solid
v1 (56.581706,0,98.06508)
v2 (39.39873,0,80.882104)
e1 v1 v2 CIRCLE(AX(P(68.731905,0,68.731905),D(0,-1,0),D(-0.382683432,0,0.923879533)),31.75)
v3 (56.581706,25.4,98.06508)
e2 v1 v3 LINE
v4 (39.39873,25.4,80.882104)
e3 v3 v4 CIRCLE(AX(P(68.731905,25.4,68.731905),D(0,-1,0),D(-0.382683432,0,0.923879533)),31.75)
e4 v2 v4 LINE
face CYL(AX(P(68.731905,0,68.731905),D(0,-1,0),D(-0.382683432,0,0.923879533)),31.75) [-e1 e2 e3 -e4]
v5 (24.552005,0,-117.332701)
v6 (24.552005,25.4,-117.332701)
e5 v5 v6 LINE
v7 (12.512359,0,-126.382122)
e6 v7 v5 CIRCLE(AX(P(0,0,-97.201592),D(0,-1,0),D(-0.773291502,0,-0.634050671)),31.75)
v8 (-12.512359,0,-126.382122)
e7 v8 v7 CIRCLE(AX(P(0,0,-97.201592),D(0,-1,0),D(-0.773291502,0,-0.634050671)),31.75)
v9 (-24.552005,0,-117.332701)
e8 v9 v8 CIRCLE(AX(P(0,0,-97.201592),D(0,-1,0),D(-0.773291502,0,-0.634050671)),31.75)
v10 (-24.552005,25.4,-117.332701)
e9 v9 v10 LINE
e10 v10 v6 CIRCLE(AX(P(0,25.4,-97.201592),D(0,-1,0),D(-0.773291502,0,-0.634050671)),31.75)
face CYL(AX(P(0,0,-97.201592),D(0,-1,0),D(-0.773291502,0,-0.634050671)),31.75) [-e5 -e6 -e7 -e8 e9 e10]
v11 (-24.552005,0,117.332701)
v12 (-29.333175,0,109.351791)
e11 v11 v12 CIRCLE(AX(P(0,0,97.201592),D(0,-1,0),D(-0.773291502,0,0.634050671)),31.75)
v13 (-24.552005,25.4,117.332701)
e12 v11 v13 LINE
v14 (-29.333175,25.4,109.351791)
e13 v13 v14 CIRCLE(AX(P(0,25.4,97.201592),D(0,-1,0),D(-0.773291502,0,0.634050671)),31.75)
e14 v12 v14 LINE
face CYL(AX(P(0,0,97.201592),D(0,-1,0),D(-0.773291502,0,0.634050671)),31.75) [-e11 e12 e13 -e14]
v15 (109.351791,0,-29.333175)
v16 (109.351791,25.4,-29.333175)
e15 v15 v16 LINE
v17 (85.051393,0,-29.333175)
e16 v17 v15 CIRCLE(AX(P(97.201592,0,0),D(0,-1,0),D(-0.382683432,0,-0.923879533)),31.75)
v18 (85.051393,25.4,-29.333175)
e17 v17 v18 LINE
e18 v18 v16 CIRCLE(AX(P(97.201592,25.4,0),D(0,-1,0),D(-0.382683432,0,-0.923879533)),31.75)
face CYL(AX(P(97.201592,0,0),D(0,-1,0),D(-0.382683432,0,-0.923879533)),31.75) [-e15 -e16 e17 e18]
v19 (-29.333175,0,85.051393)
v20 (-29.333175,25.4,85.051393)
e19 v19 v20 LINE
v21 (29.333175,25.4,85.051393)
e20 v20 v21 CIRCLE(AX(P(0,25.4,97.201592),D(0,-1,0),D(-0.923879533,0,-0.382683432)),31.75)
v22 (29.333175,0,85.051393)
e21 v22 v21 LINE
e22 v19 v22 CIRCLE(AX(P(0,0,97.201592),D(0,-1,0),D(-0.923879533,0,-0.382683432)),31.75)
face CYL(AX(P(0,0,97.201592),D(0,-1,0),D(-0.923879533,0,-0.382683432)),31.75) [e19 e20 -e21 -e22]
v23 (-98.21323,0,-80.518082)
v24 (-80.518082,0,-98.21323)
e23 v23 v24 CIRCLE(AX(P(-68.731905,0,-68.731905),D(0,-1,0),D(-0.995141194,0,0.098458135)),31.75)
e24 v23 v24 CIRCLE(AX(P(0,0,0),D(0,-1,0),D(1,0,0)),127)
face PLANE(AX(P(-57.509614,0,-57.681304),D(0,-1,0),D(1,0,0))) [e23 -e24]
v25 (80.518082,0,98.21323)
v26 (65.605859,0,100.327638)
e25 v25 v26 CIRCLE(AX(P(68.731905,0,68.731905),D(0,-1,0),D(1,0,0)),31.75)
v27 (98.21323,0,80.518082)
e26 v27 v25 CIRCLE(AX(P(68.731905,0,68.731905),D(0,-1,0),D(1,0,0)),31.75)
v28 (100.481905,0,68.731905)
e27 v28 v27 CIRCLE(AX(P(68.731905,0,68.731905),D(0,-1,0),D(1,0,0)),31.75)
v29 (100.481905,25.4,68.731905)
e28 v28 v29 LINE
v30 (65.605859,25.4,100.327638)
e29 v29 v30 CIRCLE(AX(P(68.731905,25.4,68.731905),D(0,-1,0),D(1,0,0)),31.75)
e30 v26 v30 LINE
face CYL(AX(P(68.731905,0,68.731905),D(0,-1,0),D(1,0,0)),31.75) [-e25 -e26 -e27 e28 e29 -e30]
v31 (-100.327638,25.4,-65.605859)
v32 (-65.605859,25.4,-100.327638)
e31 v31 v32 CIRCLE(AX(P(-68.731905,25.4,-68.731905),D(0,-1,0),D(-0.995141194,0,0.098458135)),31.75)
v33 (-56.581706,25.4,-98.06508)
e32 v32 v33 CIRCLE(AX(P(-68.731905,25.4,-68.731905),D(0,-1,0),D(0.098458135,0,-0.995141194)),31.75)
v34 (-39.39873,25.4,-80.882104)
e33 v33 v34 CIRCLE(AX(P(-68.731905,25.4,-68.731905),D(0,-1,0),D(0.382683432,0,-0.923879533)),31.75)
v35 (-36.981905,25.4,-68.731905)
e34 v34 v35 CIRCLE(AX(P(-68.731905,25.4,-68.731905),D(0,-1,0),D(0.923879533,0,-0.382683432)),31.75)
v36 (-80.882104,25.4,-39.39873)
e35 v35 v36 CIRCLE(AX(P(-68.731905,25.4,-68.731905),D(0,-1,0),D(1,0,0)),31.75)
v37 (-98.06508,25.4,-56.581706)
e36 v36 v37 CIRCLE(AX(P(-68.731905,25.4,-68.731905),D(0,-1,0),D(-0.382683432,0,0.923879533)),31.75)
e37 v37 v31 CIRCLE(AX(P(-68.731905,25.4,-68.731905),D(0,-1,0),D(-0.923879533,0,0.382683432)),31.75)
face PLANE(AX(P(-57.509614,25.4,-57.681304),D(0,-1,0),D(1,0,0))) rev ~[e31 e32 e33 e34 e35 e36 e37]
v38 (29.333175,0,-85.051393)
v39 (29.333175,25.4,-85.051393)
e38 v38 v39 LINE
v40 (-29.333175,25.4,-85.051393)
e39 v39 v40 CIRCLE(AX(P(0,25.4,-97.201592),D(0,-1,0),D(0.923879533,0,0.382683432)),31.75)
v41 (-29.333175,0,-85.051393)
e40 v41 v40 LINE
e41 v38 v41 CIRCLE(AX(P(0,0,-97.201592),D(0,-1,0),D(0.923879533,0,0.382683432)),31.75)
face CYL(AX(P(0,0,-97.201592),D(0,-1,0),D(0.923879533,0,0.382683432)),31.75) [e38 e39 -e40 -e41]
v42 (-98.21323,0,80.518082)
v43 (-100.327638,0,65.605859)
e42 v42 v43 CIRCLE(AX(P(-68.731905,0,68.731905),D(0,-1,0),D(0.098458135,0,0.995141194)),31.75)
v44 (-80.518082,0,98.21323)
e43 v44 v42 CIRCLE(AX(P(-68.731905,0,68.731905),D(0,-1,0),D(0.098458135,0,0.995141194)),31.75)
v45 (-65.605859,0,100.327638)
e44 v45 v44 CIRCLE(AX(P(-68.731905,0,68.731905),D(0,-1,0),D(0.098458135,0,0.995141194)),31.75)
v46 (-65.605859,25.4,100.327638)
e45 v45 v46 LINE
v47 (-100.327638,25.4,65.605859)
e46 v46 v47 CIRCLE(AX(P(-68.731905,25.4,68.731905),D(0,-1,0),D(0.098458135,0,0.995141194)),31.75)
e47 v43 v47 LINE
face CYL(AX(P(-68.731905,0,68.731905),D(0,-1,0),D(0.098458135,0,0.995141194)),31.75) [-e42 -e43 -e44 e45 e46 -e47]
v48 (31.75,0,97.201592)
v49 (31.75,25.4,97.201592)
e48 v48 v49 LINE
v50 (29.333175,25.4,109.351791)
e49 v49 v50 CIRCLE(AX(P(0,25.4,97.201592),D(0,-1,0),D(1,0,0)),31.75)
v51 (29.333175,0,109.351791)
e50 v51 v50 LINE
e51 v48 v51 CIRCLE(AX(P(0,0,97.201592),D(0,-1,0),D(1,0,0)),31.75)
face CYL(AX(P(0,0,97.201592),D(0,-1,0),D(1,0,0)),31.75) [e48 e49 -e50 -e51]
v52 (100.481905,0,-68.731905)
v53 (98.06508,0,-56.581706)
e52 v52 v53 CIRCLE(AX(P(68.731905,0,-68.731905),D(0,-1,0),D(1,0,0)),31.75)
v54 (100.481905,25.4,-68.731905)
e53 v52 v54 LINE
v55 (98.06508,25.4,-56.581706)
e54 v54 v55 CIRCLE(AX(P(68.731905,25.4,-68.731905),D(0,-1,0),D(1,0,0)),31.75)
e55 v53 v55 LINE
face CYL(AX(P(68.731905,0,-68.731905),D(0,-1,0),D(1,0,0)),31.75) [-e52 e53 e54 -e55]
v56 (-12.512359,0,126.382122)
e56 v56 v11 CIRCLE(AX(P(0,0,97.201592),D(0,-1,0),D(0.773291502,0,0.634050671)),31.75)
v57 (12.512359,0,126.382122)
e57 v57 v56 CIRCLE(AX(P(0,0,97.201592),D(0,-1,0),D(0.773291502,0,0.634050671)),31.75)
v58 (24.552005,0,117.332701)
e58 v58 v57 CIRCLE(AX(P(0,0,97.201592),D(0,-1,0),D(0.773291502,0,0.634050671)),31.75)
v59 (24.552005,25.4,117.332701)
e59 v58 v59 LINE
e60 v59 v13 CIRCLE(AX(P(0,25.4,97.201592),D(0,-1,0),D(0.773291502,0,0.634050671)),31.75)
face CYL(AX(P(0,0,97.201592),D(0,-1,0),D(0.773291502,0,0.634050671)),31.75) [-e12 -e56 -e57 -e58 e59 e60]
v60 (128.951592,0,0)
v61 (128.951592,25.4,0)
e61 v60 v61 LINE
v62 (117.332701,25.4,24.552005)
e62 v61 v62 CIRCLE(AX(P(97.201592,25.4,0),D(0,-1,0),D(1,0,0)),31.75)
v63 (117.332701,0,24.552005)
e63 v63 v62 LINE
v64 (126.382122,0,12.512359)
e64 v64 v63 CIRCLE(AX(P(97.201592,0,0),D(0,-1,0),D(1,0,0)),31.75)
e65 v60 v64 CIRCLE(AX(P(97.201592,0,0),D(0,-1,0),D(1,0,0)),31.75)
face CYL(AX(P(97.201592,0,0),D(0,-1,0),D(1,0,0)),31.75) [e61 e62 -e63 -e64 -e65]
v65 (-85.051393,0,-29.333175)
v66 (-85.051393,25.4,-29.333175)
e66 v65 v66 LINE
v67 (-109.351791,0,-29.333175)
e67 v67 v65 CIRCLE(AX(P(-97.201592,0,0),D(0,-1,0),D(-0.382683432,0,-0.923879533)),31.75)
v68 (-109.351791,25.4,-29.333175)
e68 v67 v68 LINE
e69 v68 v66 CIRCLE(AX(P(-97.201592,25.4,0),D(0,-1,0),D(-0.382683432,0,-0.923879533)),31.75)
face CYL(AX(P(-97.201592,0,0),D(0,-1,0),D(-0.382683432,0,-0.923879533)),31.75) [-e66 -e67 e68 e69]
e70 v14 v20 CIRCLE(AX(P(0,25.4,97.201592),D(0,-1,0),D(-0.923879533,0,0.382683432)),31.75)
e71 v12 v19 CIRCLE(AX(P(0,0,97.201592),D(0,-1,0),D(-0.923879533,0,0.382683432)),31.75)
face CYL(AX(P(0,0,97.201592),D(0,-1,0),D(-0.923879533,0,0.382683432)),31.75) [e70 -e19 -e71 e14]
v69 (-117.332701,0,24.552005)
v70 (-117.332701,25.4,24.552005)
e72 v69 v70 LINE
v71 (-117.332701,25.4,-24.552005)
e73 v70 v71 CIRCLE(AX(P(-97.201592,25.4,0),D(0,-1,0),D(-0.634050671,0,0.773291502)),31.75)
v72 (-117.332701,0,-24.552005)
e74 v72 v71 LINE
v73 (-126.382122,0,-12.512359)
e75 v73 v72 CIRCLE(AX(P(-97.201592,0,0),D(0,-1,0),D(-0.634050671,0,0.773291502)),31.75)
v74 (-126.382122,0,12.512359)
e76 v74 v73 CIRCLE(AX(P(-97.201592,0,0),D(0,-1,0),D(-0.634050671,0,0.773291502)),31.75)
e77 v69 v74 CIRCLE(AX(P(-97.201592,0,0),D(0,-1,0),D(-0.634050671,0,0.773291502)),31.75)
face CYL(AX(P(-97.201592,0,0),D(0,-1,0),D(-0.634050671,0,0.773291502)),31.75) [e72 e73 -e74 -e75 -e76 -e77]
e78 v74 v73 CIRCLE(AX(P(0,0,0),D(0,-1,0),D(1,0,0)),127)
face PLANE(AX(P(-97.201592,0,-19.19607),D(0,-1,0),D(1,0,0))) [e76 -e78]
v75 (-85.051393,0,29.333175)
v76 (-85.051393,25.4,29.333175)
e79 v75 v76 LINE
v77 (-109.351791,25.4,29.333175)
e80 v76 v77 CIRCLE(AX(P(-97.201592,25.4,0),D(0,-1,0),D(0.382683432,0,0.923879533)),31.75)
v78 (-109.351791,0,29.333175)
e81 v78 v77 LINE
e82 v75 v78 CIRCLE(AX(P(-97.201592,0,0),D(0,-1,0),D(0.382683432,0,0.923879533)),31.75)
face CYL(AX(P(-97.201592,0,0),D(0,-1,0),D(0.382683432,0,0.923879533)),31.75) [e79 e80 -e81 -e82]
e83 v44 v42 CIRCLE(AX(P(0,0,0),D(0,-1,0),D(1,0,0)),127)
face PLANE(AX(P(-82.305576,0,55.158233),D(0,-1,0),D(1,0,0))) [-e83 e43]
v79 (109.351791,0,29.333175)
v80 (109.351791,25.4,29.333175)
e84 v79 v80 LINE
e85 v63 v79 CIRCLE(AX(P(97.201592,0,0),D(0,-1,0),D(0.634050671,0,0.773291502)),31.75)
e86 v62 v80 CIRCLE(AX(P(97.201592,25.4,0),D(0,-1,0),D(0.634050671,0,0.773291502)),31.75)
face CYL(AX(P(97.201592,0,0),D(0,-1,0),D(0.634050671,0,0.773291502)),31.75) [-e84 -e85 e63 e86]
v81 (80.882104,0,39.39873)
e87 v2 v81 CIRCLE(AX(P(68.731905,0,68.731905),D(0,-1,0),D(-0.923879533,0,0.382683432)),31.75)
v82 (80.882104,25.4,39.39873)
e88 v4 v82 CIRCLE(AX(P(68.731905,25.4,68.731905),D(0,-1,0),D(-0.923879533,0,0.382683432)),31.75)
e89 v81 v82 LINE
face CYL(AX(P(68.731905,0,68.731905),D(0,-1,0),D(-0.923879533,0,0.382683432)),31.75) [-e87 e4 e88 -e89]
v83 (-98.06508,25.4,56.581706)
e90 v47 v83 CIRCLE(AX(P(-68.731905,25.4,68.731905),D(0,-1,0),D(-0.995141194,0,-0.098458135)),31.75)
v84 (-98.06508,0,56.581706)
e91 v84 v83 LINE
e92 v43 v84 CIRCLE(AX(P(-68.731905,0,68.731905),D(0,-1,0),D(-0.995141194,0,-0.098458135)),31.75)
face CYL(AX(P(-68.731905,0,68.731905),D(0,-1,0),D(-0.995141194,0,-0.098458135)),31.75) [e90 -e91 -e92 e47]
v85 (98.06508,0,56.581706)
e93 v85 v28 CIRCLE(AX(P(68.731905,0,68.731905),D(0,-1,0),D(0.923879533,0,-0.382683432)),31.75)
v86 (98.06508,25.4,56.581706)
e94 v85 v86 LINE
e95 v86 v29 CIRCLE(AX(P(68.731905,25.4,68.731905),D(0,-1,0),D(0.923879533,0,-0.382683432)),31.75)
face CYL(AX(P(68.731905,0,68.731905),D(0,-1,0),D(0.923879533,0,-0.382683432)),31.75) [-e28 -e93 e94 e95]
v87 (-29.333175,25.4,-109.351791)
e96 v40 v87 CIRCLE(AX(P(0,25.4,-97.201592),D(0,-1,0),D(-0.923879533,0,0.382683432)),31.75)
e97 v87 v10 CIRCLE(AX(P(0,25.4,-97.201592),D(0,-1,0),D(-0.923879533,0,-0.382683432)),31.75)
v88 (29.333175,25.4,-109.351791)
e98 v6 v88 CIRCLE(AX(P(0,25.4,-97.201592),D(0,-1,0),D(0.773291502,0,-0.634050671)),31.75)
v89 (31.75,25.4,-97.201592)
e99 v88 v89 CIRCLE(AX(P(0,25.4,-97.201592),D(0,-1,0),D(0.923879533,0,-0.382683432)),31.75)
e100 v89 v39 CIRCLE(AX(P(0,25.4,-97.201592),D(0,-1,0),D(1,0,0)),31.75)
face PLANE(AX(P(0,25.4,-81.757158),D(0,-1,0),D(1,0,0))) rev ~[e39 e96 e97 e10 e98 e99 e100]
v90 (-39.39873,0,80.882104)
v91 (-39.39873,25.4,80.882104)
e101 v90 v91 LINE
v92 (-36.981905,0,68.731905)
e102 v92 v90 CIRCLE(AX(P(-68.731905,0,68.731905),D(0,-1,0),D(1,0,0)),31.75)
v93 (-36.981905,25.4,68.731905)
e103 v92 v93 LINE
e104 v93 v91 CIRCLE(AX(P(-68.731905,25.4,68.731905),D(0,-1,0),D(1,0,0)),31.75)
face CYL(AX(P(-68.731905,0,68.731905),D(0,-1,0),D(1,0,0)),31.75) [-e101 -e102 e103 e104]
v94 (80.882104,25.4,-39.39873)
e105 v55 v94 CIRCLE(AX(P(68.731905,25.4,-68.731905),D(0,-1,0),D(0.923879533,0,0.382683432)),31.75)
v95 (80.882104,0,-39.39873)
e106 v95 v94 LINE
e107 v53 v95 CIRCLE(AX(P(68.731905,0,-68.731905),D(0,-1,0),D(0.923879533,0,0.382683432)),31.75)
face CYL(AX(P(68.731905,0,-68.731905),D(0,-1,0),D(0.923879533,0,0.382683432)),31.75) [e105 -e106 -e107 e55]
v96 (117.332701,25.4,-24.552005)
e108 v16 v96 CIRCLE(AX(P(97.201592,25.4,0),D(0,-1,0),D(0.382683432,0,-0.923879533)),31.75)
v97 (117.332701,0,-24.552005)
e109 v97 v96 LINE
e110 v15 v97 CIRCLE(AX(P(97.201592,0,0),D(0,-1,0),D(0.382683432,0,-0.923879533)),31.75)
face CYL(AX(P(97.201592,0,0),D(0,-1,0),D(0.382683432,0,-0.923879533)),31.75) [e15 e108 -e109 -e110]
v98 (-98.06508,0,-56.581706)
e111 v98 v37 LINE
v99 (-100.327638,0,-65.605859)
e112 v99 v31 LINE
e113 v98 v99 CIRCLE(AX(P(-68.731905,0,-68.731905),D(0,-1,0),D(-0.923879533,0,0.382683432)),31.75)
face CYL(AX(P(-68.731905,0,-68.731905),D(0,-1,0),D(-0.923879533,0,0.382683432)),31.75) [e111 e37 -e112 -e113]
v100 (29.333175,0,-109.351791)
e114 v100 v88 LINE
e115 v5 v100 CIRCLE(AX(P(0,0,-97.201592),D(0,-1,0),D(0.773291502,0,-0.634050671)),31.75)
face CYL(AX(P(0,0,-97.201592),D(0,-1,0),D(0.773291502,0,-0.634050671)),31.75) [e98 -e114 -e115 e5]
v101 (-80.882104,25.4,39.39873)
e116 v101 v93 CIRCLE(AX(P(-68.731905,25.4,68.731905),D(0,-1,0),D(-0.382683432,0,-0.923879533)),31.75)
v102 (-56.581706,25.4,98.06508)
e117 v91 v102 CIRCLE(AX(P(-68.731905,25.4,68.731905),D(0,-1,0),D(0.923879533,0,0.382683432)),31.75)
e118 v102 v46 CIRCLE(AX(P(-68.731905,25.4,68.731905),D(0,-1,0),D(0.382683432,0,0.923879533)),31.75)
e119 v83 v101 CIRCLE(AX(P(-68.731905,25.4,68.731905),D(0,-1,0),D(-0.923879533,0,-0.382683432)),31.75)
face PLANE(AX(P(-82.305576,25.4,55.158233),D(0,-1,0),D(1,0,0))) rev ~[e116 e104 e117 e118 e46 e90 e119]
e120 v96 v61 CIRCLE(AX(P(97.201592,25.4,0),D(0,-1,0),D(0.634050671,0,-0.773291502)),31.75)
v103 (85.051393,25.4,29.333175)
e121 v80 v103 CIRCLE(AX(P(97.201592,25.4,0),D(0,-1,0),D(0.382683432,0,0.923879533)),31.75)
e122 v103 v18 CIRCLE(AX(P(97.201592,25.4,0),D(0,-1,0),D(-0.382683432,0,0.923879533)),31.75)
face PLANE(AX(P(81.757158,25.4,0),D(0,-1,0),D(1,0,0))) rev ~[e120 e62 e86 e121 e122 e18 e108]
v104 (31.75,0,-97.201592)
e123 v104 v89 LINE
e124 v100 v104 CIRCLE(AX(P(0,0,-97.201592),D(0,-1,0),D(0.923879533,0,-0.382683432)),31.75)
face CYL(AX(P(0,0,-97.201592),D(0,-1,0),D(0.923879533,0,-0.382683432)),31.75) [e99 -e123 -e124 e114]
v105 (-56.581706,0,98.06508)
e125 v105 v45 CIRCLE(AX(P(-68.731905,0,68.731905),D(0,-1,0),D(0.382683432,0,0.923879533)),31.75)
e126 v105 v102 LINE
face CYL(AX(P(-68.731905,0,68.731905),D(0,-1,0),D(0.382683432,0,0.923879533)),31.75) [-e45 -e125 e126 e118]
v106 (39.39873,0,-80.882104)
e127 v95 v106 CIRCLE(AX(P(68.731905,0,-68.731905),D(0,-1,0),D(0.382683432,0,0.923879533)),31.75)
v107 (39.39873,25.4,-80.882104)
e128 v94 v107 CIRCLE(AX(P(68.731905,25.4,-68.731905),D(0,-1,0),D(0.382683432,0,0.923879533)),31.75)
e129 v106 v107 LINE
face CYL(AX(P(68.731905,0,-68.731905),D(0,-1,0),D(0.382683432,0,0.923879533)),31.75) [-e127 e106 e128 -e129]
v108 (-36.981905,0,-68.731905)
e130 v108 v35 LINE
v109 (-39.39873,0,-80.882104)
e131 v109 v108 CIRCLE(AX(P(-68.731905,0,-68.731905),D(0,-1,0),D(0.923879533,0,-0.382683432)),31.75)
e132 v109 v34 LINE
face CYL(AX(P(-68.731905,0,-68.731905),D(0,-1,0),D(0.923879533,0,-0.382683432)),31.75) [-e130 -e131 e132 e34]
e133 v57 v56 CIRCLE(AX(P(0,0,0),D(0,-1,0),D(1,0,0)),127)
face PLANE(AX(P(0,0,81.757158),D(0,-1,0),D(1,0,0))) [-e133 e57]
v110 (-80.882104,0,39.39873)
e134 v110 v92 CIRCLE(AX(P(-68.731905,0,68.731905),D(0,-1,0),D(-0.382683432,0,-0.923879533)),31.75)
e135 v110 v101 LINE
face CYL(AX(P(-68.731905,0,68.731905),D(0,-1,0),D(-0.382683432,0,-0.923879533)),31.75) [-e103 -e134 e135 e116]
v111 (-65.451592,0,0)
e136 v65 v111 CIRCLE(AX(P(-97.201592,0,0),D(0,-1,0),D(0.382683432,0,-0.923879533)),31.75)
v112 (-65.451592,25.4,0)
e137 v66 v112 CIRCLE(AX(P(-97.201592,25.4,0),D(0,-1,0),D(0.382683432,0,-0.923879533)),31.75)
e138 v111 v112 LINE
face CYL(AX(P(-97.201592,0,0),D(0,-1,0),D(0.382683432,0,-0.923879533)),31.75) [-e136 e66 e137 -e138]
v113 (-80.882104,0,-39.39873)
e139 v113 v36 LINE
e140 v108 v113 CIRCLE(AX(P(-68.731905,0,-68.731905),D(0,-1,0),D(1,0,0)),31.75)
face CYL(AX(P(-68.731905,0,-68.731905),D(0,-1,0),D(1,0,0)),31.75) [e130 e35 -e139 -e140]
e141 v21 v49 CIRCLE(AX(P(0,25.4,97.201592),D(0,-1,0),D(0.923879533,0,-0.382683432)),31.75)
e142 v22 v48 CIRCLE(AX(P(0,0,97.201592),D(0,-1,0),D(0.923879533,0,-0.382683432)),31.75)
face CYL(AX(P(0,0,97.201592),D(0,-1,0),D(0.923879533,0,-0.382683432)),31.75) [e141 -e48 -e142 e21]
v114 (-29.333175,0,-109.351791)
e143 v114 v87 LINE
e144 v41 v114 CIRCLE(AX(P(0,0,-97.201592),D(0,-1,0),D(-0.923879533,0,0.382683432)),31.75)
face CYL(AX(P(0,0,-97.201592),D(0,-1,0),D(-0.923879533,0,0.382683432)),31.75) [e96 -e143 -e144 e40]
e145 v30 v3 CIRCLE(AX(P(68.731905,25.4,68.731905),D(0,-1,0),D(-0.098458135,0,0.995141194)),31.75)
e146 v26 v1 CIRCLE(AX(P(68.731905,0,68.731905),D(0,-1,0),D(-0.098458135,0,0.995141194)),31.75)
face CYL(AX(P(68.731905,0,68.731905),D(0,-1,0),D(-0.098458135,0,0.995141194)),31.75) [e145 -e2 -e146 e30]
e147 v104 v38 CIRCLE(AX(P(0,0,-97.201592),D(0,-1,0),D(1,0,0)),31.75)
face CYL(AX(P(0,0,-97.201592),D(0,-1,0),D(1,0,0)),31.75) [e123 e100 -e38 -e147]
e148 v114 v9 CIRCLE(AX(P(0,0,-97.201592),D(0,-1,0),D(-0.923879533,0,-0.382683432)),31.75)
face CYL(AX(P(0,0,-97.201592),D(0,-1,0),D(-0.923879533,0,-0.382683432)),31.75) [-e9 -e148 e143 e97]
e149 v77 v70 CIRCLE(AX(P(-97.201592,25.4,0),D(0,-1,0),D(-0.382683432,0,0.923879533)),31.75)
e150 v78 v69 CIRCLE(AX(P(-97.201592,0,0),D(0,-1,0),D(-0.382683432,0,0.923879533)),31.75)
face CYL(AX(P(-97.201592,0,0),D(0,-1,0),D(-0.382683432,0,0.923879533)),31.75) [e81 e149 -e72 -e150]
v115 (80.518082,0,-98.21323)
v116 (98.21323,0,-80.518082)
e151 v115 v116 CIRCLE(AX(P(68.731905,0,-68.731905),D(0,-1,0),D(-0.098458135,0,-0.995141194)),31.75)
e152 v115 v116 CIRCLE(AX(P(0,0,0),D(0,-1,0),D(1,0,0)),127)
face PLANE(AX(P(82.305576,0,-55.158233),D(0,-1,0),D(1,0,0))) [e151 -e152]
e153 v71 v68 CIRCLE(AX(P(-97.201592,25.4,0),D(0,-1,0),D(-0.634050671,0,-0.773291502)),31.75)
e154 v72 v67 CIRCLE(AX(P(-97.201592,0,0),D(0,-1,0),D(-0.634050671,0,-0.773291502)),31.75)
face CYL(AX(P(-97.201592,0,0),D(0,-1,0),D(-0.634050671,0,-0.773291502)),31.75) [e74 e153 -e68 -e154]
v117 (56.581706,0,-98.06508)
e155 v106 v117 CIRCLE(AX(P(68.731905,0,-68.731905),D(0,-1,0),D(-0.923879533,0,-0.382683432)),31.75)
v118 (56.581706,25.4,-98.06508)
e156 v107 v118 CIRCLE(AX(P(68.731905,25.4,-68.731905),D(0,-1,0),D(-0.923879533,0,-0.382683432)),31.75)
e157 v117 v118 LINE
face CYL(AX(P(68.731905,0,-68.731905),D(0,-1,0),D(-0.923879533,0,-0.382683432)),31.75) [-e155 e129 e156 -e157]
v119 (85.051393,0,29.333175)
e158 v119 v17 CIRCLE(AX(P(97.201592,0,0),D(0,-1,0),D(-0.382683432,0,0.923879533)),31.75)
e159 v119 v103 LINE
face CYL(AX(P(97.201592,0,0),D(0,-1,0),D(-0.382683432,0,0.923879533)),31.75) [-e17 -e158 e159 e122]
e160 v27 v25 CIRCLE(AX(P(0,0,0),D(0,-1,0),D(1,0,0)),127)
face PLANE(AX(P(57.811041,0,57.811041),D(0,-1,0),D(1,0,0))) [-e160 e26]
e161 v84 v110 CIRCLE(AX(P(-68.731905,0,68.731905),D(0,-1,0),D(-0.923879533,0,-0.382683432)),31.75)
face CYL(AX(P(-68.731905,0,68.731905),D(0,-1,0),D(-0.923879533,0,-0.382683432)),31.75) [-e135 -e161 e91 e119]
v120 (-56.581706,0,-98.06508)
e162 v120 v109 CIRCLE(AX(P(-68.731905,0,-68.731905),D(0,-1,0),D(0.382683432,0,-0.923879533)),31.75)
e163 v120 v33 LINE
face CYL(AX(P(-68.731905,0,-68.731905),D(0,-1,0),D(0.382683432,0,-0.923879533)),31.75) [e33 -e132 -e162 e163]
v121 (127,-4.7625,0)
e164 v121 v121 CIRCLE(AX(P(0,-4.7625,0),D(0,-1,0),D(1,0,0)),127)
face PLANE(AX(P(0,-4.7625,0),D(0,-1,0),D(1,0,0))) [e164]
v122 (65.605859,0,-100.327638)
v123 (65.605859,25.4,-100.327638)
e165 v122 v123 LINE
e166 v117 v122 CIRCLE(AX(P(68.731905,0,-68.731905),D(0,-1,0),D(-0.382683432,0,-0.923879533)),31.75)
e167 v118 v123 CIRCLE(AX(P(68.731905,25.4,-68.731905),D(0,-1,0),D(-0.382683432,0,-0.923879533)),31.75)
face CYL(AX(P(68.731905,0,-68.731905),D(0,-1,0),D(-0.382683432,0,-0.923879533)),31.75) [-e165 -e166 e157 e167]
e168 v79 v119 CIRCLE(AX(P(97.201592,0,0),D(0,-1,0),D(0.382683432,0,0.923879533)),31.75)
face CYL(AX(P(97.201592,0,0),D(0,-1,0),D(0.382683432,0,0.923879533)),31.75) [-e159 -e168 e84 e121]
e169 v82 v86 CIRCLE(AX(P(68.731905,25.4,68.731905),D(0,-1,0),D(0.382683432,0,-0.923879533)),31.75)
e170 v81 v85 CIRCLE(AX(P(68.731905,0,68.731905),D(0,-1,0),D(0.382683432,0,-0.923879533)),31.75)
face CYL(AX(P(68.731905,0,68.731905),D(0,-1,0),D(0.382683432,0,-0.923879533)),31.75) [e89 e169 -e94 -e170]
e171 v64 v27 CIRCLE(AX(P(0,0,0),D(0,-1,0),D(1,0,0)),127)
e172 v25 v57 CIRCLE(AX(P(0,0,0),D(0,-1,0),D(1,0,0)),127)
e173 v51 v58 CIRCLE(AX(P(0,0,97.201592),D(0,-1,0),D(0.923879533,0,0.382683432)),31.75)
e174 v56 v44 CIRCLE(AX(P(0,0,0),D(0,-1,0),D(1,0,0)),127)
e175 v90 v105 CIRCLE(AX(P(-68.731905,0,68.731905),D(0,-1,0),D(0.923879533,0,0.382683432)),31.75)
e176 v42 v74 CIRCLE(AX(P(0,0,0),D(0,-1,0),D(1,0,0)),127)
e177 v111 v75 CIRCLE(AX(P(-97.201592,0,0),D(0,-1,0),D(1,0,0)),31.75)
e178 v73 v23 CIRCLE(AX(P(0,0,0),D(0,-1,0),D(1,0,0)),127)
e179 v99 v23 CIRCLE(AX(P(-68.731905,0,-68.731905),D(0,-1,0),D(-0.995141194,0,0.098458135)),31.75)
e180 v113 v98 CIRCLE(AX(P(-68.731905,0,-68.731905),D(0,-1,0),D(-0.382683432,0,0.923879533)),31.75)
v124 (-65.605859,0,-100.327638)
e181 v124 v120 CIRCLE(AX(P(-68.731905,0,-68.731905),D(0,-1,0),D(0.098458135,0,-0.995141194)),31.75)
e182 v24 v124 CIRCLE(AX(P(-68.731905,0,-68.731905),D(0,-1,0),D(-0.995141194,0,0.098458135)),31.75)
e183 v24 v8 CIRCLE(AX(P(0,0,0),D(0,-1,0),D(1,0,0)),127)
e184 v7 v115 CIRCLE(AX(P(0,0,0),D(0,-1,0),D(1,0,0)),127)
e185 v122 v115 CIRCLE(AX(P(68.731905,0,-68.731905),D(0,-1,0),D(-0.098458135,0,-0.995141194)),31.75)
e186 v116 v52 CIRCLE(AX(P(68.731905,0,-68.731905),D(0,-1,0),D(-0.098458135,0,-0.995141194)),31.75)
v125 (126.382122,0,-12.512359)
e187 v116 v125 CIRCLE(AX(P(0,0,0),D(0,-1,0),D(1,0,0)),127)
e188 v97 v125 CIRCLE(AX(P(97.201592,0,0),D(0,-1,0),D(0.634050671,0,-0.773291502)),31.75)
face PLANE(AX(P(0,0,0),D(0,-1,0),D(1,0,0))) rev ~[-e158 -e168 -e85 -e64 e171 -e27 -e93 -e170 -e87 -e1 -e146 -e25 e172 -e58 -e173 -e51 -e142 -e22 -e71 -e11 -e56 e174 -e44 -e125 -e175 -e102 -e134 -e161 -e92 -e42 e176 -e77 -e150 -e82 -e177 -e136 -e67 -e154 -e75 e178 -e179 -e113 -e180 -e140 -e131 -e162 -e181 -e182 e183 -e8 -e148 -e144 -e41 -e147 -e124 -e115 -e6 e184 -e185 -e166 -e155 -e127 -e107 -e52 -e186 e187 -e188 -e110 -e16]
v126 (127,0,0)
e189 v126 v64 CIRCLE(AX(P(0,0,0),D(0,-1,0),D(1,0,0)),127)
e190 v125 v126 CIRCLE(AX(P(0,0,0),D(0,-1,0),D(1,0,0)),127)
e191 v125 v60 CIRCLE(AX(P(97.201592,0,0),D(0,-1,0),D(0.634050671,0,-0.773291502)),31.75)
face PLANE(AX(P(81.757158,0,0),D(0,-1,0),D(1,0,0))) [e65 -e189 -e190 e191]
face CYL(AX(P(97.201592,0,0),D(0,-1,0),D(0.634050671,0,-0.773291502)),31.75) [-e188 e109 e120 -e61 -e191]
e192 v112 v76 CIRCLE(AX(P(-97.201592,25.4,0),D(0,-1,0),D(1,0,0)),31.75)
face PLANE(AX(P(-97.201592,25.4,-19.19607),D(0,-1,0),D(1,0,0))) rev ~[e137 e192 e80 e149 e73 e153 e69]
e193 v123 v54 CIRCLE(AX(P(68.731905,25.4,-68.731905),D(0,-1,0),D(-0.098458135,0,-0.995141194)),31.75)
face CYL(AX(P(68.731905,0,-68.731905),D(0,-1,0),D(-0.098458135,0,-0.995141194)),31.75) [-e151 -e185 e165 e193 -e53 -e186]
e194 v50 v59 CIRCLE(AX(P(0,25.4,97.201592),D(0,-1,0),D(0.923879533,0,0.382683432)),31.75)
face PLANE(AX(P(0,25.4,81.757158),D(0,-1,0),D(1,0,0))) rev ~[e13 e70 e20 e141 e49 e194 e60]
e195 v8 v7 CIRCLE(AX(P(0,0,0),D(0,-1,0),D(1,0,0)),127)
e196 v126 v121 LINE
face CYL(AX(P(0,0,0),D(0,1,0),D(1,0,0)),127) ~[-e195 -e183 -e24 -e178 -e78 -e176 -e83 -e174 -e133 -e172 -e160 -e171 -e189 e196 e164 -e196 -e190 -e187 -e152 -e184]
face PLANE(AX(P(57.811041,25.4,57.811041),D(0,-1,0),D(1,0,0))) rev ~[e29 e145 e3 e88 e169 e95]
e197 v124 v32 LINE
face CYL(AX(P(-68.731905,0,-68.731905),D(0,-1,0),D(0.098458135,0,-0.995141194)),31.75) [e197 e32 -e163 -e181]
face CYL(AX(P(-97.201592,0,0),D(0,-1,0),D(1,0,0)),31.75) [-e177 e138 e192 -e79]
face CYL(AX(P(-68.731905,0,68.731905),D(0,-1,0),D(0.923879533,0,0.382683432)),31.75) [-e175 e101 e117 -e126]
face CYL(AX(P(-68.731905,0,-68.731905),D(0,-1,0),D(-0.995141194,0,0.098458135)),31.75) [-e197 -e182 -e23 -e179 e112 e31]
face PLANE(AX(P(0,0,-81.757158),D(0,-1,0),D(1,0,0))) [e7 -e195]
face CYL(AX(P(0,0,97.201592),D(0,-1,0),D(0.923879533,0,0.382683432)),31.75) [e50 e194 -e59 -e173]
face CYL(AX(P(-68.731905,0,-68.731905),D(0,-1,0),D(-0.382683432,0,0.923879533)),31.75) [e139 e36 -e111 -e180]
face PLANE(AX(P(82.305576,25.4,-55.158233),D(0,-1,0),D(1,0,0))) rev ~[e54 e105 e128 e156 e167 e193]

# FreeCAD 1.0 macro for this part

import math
import FreeCAD as App
import Part
import Sketcher
Q = App.Units.Quantity

doc = App.newDocument("Part")
body = doc.addObject("PartDesign::Body", "Body")

# Sketch on XZ plane
sketch1 = body.newObject("Sketcher::SketchObject", "Sketch")
sketch1.AttachmentSupport = (doc.getObject("XZ_Plane"), [""])
sketch1.MapMode = "FlatFace"
sketch1.addGeometry(Part.Circle(App.Vector(0, 0, 0), App.Vector(0, 0, 1), 127), False)
sketch1.addConstraint([
    Sketcher.Constraint("Coincident", 0, 3, -1, 1),
    Sketcher.Constraint("Diameter", 0, Q("10 in")),
])
pad1 = body.newObject("PartDesign::Pad", "Pad")
pad1.Profile = sketch1
pad1.Length = Q("0.1875 in")

# Sketch on XZ plane
sketch2 = body.newObject("Sketcher::SketchObject", "Sketch001")
sketch2.AttachmentSupport = (doc.getObject("XZ_Plane"), [""])
sketch2.MapMode = "FlatFace"
sketch2.addGeometry([
    Part.ArcOfCircle(Part.Circle(App.Vector(-69, -69, 0), App.Vector(0, 0, 1), 32), math.radians(0), math.radians(112)),  # 0
    Part.ArcOfCircle(Part.Circle(App.Vector(-69, -69, 0), App.Vector(0, 0, 1), 32), math.radians(113), math.radians(157)),  # 1
    Part.ArcOfCircle(Part.Circle(App.Vector(-69, -69, 0), App.Vector(0, 0, 1), 32), math.radians(157.5), math.radians(174.35)),  # 2
    Part.ArcOfCircle(Part.Circle(App.Vector(-69, -69, 0), App.Vector(0, 0, 1), 32), math.radians(174), math.radians(276)),  # 3
    Part.ArcOfCircle(Part.Circle(App.Vector(-69, -69, 0), App.Vector(0, 0, 1), 32), math.radians(-84.35), math.radians(-67.5)),  # 4
    Part.ArcOfCircle(Part.Circle(App.Vector(-69, -69, 0), App.Vector(0, 0, 1), 32), math.radians(-67), math.radians(-23)),  # 5
    Part.ArcOfCircle(Part.Circle(App.Vector(-69, -69, 0), App.Vector(0, 0, 1), 32), math.radians(-22), math.radians(0)),  # 6
    Part.ArcOfCircle(Part.Circle(App.Vector(-97, 0, 0), App.Vector(0, 0, 1), 32), math.radians(-112), math.radians(-67)),  # 7
    Part.ArcOfCircle(Part.Circle(App.Vector(-97, 0, 0), App.Vector(0, 0, 1), 32), math.radians(-67), math.radians(0)),  # 8
    Part.ArcOfCircle(Part.Circle(App.Vector(-97, 0, 0), App.Vector(0, 0, 1), 32), math.radians(0), math.radians(67)),  # 9
    Part.ArcOfCircle(Part.Circle(App.Vector(-97, 0, 0), App.Vector(0, 0, 1), 32), math.radians(67), math.radians(112)),  # 10
    Part.ArcOfCircle(Part.Circle(App.Vector(-97, 0, 0), App.Vector(0, 0, 1), 32), math.radians(112.5), math.radians(129.35)),  # 11
    Part.ArcOfCircle(Part.Circle(App.Vector(-97, 0, 0), App.Vector(0, 0, 1), 32), math.radians(129), math.radians(231)),  # 12
    Part.ArcOfCircle(Part.Circle(App.Vector(-97, 0, 0), App.Vector(0, 0, 1), 32), math.radians(-129.35), math.radians(-112.5)),  # 13
    Part.ArcOfCircle(Part.Circle(App.Vector(-69, 69, 0), App.Vector(0, 0, 1), 32), math.radians(-157), math.radians(-113)),  # 14
    Part.ArcOfCircle(Part.Circle(App.Vector(-69, 69, 0), App.Vector(0, 0, 1), 32), math.radians(-112), math.radians(0)),  # 15
    Part.ArcOfCircle(Part.Circle(App.Vector(-69, 69, 0), App.Vector(0, 0, 1), 32), math.radians(0), math.radians(22)),  # 16
    Part.ArcOfCircle(Part.Circle(App.Vector(-69, 69, 0), App.Vector(0, 0, 1), 32), math.radians(23), math.radians(67)),  # 17
    Part.ArcOfCircle(Part.Circle(App.Vector(-69, 69, 0), App.Vector(0, 0, 1), 32), math.radians(67.5), math.radians(84.35)),  # 18
    Part.ArcOfCircle(Part.Circle(App.Vector(-69, 69, 0), App.Vector(0, 0, 1), 32), math.radians(84), math.radians(186)),  # 19
    Part.ArcOfCircle(Part.Circle(App.Vector(-69, 69, 0), App.Vector(0, 0, 1), 32), math.radians(-174.35), math.radians(-157.5)),  # 20
    Part.ArcOfCircle(Part.Circle(App.Vector(0, 97, 0), App.Vector(0, 0, 1), 32), math.radians(-157), math.radians(-23)),  # 21
    Part.ArcOfCircle(Part.Circle(App.Vector(0, 97, 0), App.Vector(0, 0, 1), 32), math.radians(-23), math.radians(0)),  # 22
    Part.ArcOfCircle(Part.Circle(App.Vector(0, 97, 0), App.Vector(0, 0, 1), 32), math.radians(0), math.radians(22)),  # 23
    Part.ArcOfCircle(Part.Circle(App.Vector(0, 97, 0), App.Vector(0, 0, 1), 32), math.radians(22.5), math.radians(39.35)),  # 24
    Part.ArcOfCircle(Part.Circle(App.Vector(0, 97, 0), App.Vector(0, 0, 1), 32), math.radians(39), math.radians(141)),  # 25
    Part.ArcOfCircle(Part.Circle(App.Vector(0, 97, 0), App.Vector(0, 0, 1), 32), math.radians(140.65), math.radians(157.5)),  # 26
    Part.ArcOfCircle(Part.Circle(App.Vector(0, 97, 0), App.Vector(0, 0, 1), 32), math.radians(158), math.radians(203)),  # 27
    Part.ArcOfCircle(Part.Circle(App.Vector(69, 69, 0), App.Vector(0, 0, 1), 32), math.radians(158), math.radians(292)),  # 28
    Part.ArcOfCircle(Part.Circle(App.Vector(69, 69, 0), App.Vector(0, 0, 1), 32), math.radians(-67), math.radians(-23)),  # 29
    Part.ArcOfCircle(Part.Circle(App.Vector(69, 69, 0), App.Vector(0, 0, 1), 32), math.radians(-22), math.radians(0)),  # 30
    Part.ArcOfCircle(Part.Circle(App.Vector(69, 69, 0), App.Vector(0, 0, 1), 32), math.radians(0), math.radians(96)),  # 31
    Part.ArcOfCircle(Part.Circle(App.Vector(69, 69, 0), App.Vector(0, 0, 1), 32), math.radians(95.65), math.radians(112.5)),  # 32
    Part.ArcOfCircle(Part.Circle(App.Vector(69, 69, 0), App.Vector(0, 0, 1), 32), math.radians(113), math.radians(157)),  # 33
    Part.ArcOfCircle(Part.Circle(App.Vector(97, 0, 0), App.Vector(0, 0, 1), 32), math.radians(113), math.radians(247)),  # 34
    Part.ArcOfCircle(Part.Circle(App.Vector(97, 0, 0), App.Vector(0, 0, 1), 32), math.radians(-113), math.radians(-68)),  # 35
    Part.ArcOfCircle(Part.Circle(App.Vector(97, 0, 0), App.Vector(0, 0, 1), 32), math.radians(-67.5), math.radians(-50.65)),  # 36
    Part.ArcOfCircle(Part.Circle(App.Vector(97, 0, 0), App.Vector(0, 0, 1), 32), math.radians(-51), math.radians(0)),  # 37
    Part.ArcOfCircle(Part.Circle(App.Vector(97, 0, 0), App.Vector(0, 0, 1), 32), math.radians(0), math.radians(51)),  # 38
    Part.ArcOfCircle(Part.Circle(App.Vector(97, 0, 0), App.Vector(0, 0, 1), 32), math.radians(50.65), math.radians(67.5)),  # 39
    Part.ArcOfCircle(Part.Circle(App.Vector(97, 0, 0), App.Vector(0, 0, 1), 32), math.radians(68), math.radians(113)),  # 40
    Part.ArcOfCircle(Part.Circle(App.Vector(69, -69, 0), App.Vector(0, 0, 1), 32), math.radians(23), math.radians(67)),  # 41
    Part.ArcOfCircle(Part.Circle(App.Vector(69, -69, 0), App.Vector(0, 0, 1), 32), math.radians(68), math.radians(202)),  # 42
    Part.ArcOfCircle(Part.Circle(App.Vector(69, -69, 0), App.Vector(0, 0, 1), 32), math.radians(-157), math.radians(-113)),  # 43
    Part.ArcOfCircle(Part.Circle(App.Vector(69, -69, 0), App.Vector(0, 0, 1), 32), math.radians(-112.5), math.radians(-95.65)),  # 44
    Part.ArcOfCircle(Part.Circle(App.Vector(69, -69, 0), App.Vector(0, 0, 1), 32), math.radians(-96), math.radians(0)),  # 45
    Part.ArcOfCircle(Part.Circle(App.Vector(69, -69, 0), App.Vector(0, 0, 1), 32), math.radians(0), math.radians(23)),  # 46
    Part.ArcOfCircle(Part.Circle(App.Vector(0, -97, 0), App.Vector(0, 0, 1), 32), math.radians(23), math.radians(157)),  # 47
    Part.ArcOfCircle(Part.Circle(App.Vector(0, -97, 0), App.Vector(0, 0, 1), 32), math.radians(157), math.radians(202)),  # 48
    Part.ArcOfCircle(Part.Circle(App.Vector(0, -97, 0), App.Vector(0, 0, 1), 32), math.radians(-157.5), math.radians(-140.65)),  # 49
    Part.ArcOfCircle(Part.Circle(App.Vector(0, -97, 0), App.Vector(0, 0, 1), 32), math.radians(-141), math.radians(-39)),  # 50
    Part.ArcOfCircle(Part.Circle(App.Vector(0, -97, 0), App.Vector(0, 0, 1), 32), math.radians(-39.35), math.radians(-22.5)),  # 51
    Part.ArcOfCircle(Part.Circle(App.Vector(0, -97, 0), App.Vector(0, 0, 1), 32), math.radians(-22), math.radians(0)),  # 52
    Part.ArcOfCircle(Part.Circle(App.Vector(0, -97, 0), App.Vector(0, 0, 1), 32), math.radians(0), math.radians(23)),  # 53
], False)
sketch2.addConstraint([
    Sketcher.Constraint("Tangent", 0, 2, 1, 1),
    Sketcher.Constraint("Tangent", 1, 2, 2, 1),
    Sketcher.Constraint("Tangent", 2, 2, 3, 1),
    Sketcher.Constraint("Tangent", 3, 2, 4, 1),
    Sketcher.Constraint("Tangent", 4, 2, 5, 1),
    Sketcher.Constraint("Tangent", 5, 2, 6, 1),
    Sketcher.Constraint("Tangent", 6, 2, 0, 1),
    Sketcher.Constraint("Tangent", 7, 2, 8, 1),
    Sketcher.Constraint("Tangent", 8, 2, 9, 1),
    Sketcher.Constraint("Tangent", 9, 2, 10, 1),
    Sketcher.Constraint("Tangent", 10, 2, 11, 1),
    Sketcher.Constraint("Tangent", 11, 2, 12, 1),
    Sketcher.Constraint("Tangent", 12, 2, 13, 1),
    Sketcher.Constraint("Tangent", 13, 2, 7, 1),
    Sketcher.Constraint("Tangent", 14, 2, 15, 1),
    Sketcher.Constraint("Tangent", 15, 2, 16, 1),
    Sketcher.Constraint("Tangent", 16, 2, 17, 1),
    Sketcher.Constraint("Tangent", 17, 2, 18, 1),
    Sketcher.Constraint("Tangent", 18, 2, 19, 1),
    Sketcher.Constraint("Tangent", 19, 2, 20, 1),
    Sketcher.Constraint("Tangent", 20, 2, 14, 1),
    Sketcher.Constraint("Tangent", 21, 2, 22, 1),
    Sketcher.Constraint("Tangent", 22, 2, 23, 1),
    Sketcher.Constraint("Tangent", 23, 2, 24, 1),
    Sketcher.Constraint("Tangent", 24, 2, 25, 1),
    Sketcher.Constraint("Tangent", 25, 2, 26, 1),
    Sketcher.Constraint("Tangent", 26, 2, 27, 1),
    Sketcher.Constraint("Tangent", 27, 2, 21, 1),
    Sketcher.Constraint("Tangent", 28, 2, 29, 1),
    Sketcher.Constraint("Tangent", 29, 2, 30, 1),
    Sketcher.Constraint("Tangent", 30, 2, 31, 1),
    Sketcher.Constraint("Tangent", 31, 2, 32, 1),
    Sketcher.Constraint("Tangent", 32, 2, 33, 1),
    Sketcher.Constraint("Tangent", 33, 2, 28, 1),
    Sketcher.Constraint("Tangent", 34, 2, 35, 1),
    Sketcher.Constraint("Tangent", 35, 2, 36, 1),
    Sketcher.Constraint("Tangent", 36, 2, 37, 1),
    Sketcher.Constraint("Tangent", 37, 2, 38, 1),
    Sketcher.Constraint("Tangent", 38, 2, 39, 1),
    Sketcher.Constraint("Tangent", 39, 2, 40, 1),
    Sketcher.Constraint("Tangent", 40, 2, 34, 1),
    Sketcher.Constraint("Tangent", 41, 2, 42, 1),
    Sketcher.Constraint("Tangent", 42, 2, 43, 1),
    Sketcher.Constraint("Tangent", 43, 2, 44, 1),
    Sketcher.Constraint("Tangent", 44, 2, 45, 1),
    Sketcher.Constraint("Tangent", 45, 2, 46, 1),
    Sketcher.Constraint("Tangent", 46, 2, 41, 1),
    Sketcher.Constraint("Tangent", 47, 2, 48, 1),
    Sketcher.Constraint("Tangent", 48, 2, 49, 1),
    Sketcher.Constraint("Tangent", 49, 2, 50, 1),
    Sketcher.Constraint("Tangent", 50, 2, 51, 1),
    Sketcher.Constraint("Tangent", 51, 2, 52, 1),
    Sketcher.Constraint("Tangent", 52, 2, 53, 1),
    Sketcher.Constraint("Tangent", 53, 2, 47, 1),
    Sketcher.Constraint("Coincident", 2, 3, 0, 3),
    Sketcher.Constraint("Coincident", 4, 3, 0, 3),
    Sketcher.Constraint("Coincident", 9, 3, 7, 3),
    Sketcher.Constraint("Coincident", 11, 3, 7, 3),
    Sketcher.Constraint("Coincident", 16, 3, 14, 3),
    Sketcher.Constraint("Coincident", 18, 3, 14, 3),
    Sketcher.Constraint("Coincident", 23, 3, 21, 3),
    Sketcher.Constraint("Coincident", 25, 3, 21, 3),
    Sketcher.Constraint("Coincident", 30, 3, 28, 3),
    Sketcher.Constraint("Coincident", 36, 3, 34, 3),
    Sketcher.Constraint("Coincident", 38, 3, 34, 3),
    Sketcher.Constraint("Coincident", 43, 3, 41, 3),
    Sketcher.Constraint("Coincident", 49, 3, 47, 3),
    Sketcher.Constraint("Coincident", 51, 3, 47, 3),
    Sketcher.Constraint("Equal", 6, 7),
    Sketcher.Constraint("Equal", 13, 14),
    Sketcher.Constraint("Equal", 20, 21),
    Sketcher.Constraint("Equal", 27, 28),
    Sketcher.Constraint("Equal", 30, 31),
    Sketcher.Constraint("Equal", 33, 34),
    Sketcher.Constraint("Equal", 40, 41),
    Sketcher.Constraint("Equal", 43, 44),
    Sketcher.Constraint("Equal", 46, 47),
    Sketcher.Constraint("Symmetric", 0, 3, 28, 3, -1, 1),
    Sketcher.Constraint("Symmetric", 7, 3, 34, 3, -1, 1),
    Sketcher.Constraint("Symmetric", 14, 3, 41, 3, -1, 1),
    Sketcher.Constraint("Symmetric", 21, 3, 47, 3, -1, 1),
    Sketcher.Constraint("Symmetric", 14, 3, 28, 3, -2),
    Sketcher.Constraint("Symmetric", 24, 2, 25, 2, -2),
    Sketcher.Constraint("Symmetric", 7, 2, 34, 2, -2),
    Sketcher.Constraint("PointOnObject", 8, 2, -1),
    Sketcher.Constraint("PointOnObject", 37, 2, -1),
    Sketcher.Constraint("Horizontal", 46, 3, 6, 2),
    Sketcher.Constraint("Horizontal", 9, 2, 10, 2),
    Sketcher.Constraint("Horizontal", 7, 2, 13, 2),
    Sketcher.Constraint("Horizontal", 33, 3, 15, 2),
    Sketcher.Constraint("Horizontal", 27, 3, 22, 2),
    Sketcher.Constraint("Horizontal", 23, 2, 26, 2),
    Sketcher.Constraint("Horizontal", 21, 2, 27, 2),
    Sketcher.Constraint("Horizontal", 14, 2, 28, 2),
    Sketcher.Constraint("Horizontal", 20, 2, 29, 2),
    Sketcher.Constraint("Horizontal", 15, 2, 30, 2),
    Sketcher.Constraint("Horizontal", 18, 2, 31, 2),
    Sketcher.Constraint("Horizontal", 17, 2, 32, 2),
    Sketcher.Constraint("Horizontal", 16, 2, 33, 2),
    Sketcher.Constraint("Horizontal", 34, 2, 35, 2),
    Sketcher.Constraint("Horizontal", 12, 2, 36, 2),
    Sketcher.Constraint("Horizontal", 11, 2, 38, 2),
    Sketcher.Constraint("Horizontal", 10, 2, 39, 2),
    Sketcher.Constraint("Horizontal", 39, 2, 40, 2),
    Sketcher.Constraint("Horizontal", 0, 2, 41, 2),
    Sketcher.Constraint("Horizontal", 5, 2, 42, 2),
    Sketcher.Constraint("Horizontal", 4, 2, 43, 2),
    Sketcher.Constraint("Horizontal", 3, 2, 44, 2),
    Sketcher.Constraint("Horizontal", 6, 2, 45, 2),
    Sketcher.Constraint("Horizontal", 1, 2, 46, 2),
    Sketcher.Constraint("Horizontal", 49, 2, 50, 2),
    Sketcher.Constraint("Horizontal", 48, 2, 51, 2),
    Sketcher.Constraint("Horizontal", 53, 3, 52, 2),
    Sketcher.Constraint("Horizontal", 47, 2, 53, 2),
    Sketcher.Constraint("Vertical", 7, 2, 9, 2),
    Sketcher.Constraint("Vertical", 11, 2, 12, 2),
    Sketcher.Constraint("Vertical", 0, 2, 14, 2),
    Sketcher.Constraint("Vertical", 5, 2, 16, 2),
    Sketcher.Constraint("Vertical", 4, 2, 17, 2),
    Sketcher.Constraint("Vertical", 3, 2, 18, 2),
    Sketcher.Constraint("Vertical", 2, 2, 19, 2),
    Sketcher.Constraint("Vertical", 1, 2, 20, 2),
    Sketcher.Constraint("Vertical", 21, 2, 23, 2),
    Sketcher.Constraint("Vertical", 27, 2, 47, 2),
    Sketcher.Constraint("Vertical", 47, 2, 48, 2),
    Sketcher.Constraint("Vertical", 25, 2, 49, 2),
    Sketcher.Constraint("Radius", 0, Q("1.25 in")),
    Sketcher.Constraint("DistanceX", 11, 2, -1, 1, 117.332701),
    Sketcher.Constraint("DistanceY", -1, 1, 24, 2, 117.332701),
    Sketcher.Constraint("DistanceX", 7, 3, -1, 1, 97.201592),
    Sketcher.Constraint("DistanceY", -1, 1, 21, 3, 97.201592),
    Sketcher.Constraint("DistanceY", 0, 2, -1, 1, 39.39873),
    Sketcher.Constraint("DistanceX", 1, 2, -1, 1, 98.06508),
    Sketcher.Constraint("DistanceY", 2, 2, -1, 1, 65.605859),
    Sketcher.Constraint("DistanceX", 3, 2, -1, 1, 65.605859),
    Sketcher.Constraint("DistanceY", 4, 2, -1, 1, 98.06508),
    Sketcher.Constraint("DistanceX", 5, 2, -1, 1, 39.39873),
    Sketcher.Constraint("DistanceX", 10, 2, -1, 1, 109.351791),
    Sketcher.Constraint("DistanceY", -1, 1, 23, 2, 109.351791),
    Sketcher.Constraint("DistanceX", 0, 3, -1, 1, 68.731905),
    Sketcher.Constraint("DistanceY", 0, 3, -1, 1, 68.731905),
])
pad2 = body.newObject("PartDesign::Pad", "Pad001")
pad2.Profile = sketch2
pad2.Length = Q("1 in")
pad2.Reversed = True

doc.recompute()
